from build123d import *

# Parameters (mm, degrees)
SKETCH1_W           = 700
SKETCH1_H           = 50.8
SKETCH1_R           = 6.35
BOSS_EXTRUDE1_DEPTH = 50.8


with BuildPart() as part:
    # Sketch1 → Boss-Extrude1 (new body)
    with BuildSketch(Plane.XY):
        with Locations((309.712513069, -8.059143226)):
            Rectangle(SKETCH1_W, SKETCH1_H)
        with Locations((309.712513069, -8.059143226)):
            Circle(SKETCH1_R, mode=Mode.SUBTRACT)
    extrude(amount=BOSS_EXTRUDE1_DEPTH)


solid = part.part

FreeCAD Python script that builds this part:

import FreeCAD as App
import Part
import Sketcher
Q = App.Units.Quantity

doc = App.newDocument("Part")
body = doc.addObject("PartDesign::Body", "Body")

sketch1 = body.newObject("Sketcher::SketchObject", "Sketch")
sketch1.AttachmentSupport = (doc.getObject("XY_Plane"), [""])
sketch1.MapMode = "FlatFace"
sketch1.addGeometry(Part.LineSegment(App.Vector(-40, 17, 0), App.Vector(-40, -33, 0)), False)
sketch1.addGeometry(Part.LineSegment(App.Vector(-40, -33, 0), App.Vector(660, -33, 0)), False)
sketch1.addGeometry(Part.LineSegment(App.Vector(660, -33, 0), App.Vector(660, 17, 0)), False)
sketch1.addGeometry(Part.LineSegment(App.Vector(660, 17, 0), App.Vector(-40, 17, 0)), False)
sketch1.addGeometry(Part.Circle(App.Vector(310, -8, 0), App.Vector(0, 0, 1), 6), False)
sketch1.addConstraint(Sketcher.Constraint("Coincident", 0, 2, 1, 1))
sketch1.addConstraint(Sketcher.Constraint("Coincident", 1, 2, 2, 1))
sketch1.addConstraint(Sketcher.Constraint("Coincident", 2, 2, 3, 1))
sketch1.addConstraint(Sketcher.Constraint("Coincident", 3, 2, 0, 1))
sketch1.addConstraint(Sketcher.Constraint("Vertical", 0))
sketch1.addConstraint(Sketcher.Constraint("Horizontal", 1))
sketch1.addConstraint(Sketcher.Constraint("Vertical", 2))
sketch1.addConstraint(Sketcher.Constraint("Horizontal", 3))
sketch1.addConstraint(Sketcher.Constraint("Diameter", 4, Q("0.5 in")))
sketch1.addConstraint(Sketcher.Constraint("DistanceY", 0, 2, 0, 1, Q("2 in")))
sketch1.addConstraint(Sketcher.Constraint("DistanceY", 0, 2, 4, 3, Q("1 in")))
sketch1.addConstraint(Sketcher.Constraint("DistanceX", 1, 1, 1, 2, 700.0))
sketch1.addConstraint(Sketcher.Constraint("DistanceX", 0, 2, 4, 3, 350.0))
sketch1.addConstraint(Sketcher.Constraint("DistanceX", -1, 1, 4, 3, 309.712513))
sketch1.addConstraint(Sketcher.Constraint("DistanceY", 4, 3, -1, 1, 8.059143))
pad1 = body.newObject("PartDesign::Pad", "Pad")
pad1.Profile = sketch1
pad1.Length = Q("2 in")

doc.recompute()
